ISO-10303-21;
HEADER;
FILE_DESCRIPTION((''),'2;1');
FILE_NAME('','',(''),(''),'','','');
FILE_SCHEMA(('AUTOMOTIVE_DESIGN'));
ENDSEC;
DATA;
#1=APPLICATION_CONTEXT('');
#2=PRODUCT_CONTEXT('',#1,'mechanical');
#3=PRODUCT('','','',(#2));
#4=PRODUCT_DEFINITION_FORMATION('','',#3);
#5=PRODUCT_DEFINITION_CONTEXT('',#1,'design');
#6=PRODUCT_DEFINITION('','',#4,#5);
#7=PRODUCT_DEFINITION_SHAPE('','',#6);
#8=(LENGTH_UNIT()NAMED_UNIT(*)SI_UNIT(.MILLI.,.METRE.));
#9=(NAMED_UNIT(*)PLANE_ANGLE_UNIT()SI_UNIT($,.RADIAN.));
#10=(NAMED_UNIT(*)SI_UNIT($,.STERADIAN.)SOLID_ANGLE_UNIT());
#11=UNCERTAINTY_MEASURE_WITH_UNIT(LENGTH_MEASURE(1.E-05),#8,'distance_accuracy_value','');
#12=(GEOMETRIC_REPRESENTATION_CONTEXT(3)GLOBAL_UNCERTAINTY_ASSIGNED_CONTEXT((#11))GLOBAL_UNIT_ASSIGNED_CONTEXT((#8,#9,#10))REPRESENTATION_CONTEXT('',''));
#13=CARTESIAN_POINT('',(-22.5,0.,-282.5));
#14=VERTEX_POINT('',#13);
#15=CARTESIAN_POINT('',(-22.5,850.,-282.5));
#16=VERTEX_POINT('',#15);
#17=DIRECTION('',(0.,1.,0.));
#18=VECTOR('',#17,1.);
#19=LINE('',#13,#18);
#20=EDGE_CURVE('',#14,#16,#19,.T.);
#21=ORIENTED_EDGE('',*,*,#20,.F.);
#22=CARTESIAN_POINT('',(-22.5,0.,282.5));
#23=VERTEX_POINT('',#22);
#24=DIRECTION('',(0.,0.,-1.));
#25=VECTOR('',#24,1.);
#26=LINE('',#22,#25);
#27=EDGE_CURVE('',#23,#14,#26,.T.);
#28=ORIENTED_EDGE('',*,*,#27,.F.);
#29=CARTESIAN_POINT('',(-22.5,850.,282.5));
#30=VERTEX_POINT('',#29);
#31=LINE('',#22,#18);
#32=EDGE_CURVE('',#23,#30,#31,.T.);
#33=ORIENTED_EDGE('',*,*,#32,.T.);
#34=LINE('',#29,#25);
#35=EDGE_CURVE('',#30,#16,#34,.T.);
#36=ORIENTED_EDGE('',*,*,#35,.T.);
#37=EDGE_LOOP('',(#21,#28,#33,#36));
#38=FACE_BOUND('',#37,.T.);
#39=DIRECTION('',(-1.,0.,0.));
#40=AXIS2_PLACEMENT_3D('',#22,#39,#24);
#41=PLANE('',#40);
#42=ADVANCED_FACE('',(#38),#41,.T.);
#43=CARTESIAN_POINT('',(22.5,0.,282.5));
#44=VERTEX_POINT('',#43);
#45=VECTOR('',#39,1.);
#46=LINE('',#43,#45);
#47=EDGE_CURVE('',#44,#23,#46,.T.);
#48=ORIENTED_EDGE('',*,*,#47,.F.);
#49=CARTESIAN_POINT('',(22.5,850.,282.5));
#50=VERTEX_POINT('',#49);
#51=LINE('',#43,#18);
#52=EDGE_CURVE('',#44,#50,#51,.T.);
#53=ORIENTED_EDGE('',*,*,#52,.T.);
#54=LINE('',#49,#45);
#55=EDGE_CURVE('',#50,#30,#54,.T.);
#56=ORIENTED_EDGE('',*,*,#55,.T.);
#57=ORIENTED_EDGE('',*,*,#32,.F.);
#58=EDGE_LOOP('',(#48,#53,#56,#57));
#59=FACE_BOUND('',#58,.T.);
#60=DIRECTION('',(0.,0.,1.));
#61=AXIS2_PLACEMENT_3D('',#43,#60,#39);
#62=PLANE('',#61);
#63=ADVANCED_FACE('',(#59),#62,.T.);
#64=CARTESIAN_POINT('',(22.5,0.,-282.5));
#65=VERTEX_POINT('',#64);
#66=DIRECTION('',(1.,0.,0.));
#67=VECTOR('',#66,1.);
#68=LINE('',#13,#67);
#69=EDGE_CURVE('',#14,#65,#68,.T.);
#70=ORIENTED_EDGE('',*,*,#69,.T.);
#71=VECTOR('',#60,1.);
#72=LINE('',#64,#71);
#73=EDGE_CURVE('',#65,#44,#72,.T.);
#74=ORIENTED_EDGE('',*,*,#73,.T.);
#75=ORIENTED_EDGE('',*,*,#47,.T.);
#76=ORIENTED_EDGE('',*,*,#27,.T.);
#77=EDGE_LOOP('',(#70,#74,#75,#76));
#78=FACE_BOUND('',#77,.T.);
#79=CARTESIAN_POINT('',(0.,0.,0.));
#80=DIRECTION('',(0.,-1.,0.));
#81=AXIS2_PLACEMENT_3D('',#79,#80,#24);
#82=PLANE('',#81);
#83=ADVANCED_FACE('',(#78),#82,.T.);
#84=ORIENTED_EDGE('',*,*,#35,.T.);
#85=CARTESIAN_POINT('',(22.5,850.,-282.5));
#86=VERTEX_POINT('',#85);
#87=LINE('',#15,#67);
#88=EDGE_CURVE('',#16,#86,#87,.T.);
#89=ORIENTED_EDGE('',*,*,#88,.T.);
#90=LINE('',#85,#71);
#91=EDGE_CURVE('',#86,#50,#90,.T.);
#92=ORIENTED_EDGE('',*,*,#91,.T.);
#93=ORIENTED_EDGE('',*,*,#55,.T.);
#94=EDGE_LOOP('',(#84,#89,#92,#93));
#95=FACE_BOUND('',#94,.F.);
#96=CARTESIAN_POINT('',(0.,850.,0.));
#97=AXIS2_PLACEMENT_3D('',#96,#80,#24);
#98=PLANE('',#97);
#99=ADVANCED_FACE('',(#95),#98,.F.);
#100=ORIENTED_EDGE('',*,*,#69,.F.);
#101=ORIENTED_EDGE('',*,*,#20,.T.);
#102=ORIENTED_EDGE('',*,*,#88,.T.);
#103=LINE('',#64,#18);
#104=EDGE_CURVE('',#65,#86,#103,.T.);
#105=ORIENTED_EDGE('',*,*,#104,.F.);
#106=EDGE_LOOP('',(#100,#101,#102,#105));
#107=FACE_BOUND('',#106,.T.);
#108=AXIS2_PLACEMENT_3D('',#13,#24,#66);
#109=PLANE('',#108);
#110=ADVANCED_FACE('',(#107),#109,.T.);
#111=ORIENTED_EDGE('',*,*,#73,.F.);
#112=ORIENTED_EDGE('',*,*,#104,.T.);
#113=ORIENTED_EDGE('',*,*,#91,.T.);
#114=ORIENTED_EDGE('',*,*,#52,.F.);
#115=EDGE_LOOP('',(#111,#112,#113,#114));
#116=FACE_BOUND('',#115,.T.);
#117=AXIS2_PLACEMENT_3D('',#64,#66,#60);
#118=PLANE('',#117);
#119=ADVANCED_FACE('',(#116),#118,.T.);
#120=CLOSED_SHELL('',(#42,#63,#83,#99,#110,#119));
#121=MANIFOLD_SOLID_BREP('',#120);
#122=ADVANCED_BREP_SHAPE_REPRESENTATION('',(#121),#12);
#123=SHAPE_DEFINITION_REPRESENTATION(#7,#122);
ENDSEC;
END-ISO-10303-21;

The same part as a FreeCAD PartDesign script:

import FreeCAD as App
import Part
import Sketcher


def add_polygon(sketch, points):
    """Adds a closed chain of lines whose ends are joined by coincident constraints."""
    first, n = sketch.GeometryCount, len(points)
    for a, b in zip(points, points[1:] + points[:1]):
        sketch.addGeometry(Part.LineSegment(App.Vector(*a, 0), App.Vector(*b, 0)), False)
    for i in range(n):
        sketch.addConstraint(Sketcher.Constraint("Coincident", first + i, 2, first + (i + 1) % n, 1))

doc = App.newDocument("Part")
body = doc.addObject("PartDesign::Body", "Body")

sketch1 = body.newObject("Sketcher::SketchObject", "Sketch")
sketch1.AttachmentSupport = (doc.getObject("XZ_Plane"), [""])
sketch1.MapMode = "FlatFace"
add_polygon(sketch1, [(-22, 282), (-22, -282), (22, -282), (22, 282)])
sketch1.addConstraint(Sketcher.Constraint("Vertical", 0))
sketch1.addConstraint(Sketcher.Constraint("Horizontal", 1))
sketch1.addConstraint(Sketcher.Constraint("Vertical", 2))
sketch1.addConstraint(Sketcher.Constraint("Horizontal", 3))
sketch1.addConstraint(Sketcher.Constraint("Symmetric", 0, 2, 2, 2, -1, 1))
sketch1.addConstraint(Sketcher.Constraint("DistanceX", 1, 1, 1, 2, 45.0))
sketch1.addConstraint(Sketcher.Constraint("DistanceY", 0, 2, 0, 1, 565.0))
pad1 = body.newObject("PartDesign::Pad", "Pad")
pad1.Profile = sketch1
pad1.Length = 850
pad1.Reversed = True

doc.recompute()
